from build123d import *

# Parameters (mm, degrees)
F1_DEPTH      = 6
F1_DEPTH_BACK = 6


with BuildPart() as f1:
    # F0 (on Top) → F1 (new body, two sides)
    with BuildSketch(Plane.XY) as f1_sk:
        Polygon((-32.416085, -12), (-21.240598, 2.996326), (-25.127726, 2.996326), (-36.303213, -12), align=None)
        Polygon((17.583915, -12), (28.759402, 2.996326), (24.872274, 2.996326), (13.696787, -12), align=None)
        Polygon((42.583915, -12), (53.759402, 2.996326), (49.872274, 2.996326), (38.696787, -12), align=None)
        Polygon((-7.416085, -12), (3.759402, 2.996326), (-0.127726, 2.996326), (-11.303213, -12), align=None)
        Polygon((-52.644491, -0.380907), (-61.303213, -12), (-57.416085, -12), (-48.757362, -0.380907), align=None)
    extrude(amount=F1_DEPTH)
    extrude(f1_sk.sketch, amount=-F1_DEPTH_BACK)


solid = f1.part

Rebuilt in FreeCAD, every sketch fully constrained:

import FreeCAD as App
import Part
import Sketcher

V = App.Vector
Q = App.Units.Quantity


def add_polygon(sketch, points):
    """Adds a closed chain of lines whose ends are joined by coincident constraints."""
    first, n = sketch.GeometryCount, len(points)
    for a, b in zip(points, points[1:] + points[:1]):
        sketch.addGeometry(Part.LineSegment(App.Vector(*a, 0), App.Vector(*b, 0)), False)
    for i in range(n):
        sketch.addConstraint(Sketcher.Constraint("Coincident", first + i, 2, first + (i + 1) % n, 1))

doc = App.newDocument("Part")
params = doc.addObject("Spreadsheet::Sheet", "Params")
for row, (alias, value) in enumerate([
    ("pad1_length", "6 mm"),
    ("pad1_length2", "6 mm"),
], start=1):
    params.set(f"A{row}", alias)
    params.set(f"B{row}", "=" + value)
    params.setAlias(f"B{row}", alias)

body = doc.addObject("PartDesign::Body", "Body")
body.AllowCompound = True

# Sketch on XY plane
sketch1 = body.newObject("Sketcher::SketchObject", "Sketch")
sketch1.AttachmentSupport = (doc.getObject("XY_Plane"), [""])
sketch1.MapMode = "FlatFace"
add_polygon(sketch1, [(-32.416085, -12), (-21.240598, 2.996326), (-25.127726, 2.996326), (-36.303213, -12)])  # lines 0-3
add_polygon(sketch1, [(17.583915, -12), (28.759402, 2.996326), (24.872274, 2.996326), (13.696787, -12)])  # lines 4-7
add_polygon(sketch1, [(42.583915, -12), (53.759402, 2.996326), (49.872274, 2.996326), (38.696787, -12)])  # lines 8-11
add_polygon(sketch1, [(-7.416085, -12), (3.759402, 2.996326), (-0.127726, 2.996326), (-11.303213, -12)])  # lines 12-15
add_polygon(sketch1, [(-52.644491, -0.380907), (-61.303213, -12), (-57.416085, -12), (-48.757362, -0.380907)])  # lines 16-19
sketch1.addConstraint([
    Sketcher.Constraint("Horizontal", 1),
    Sketcher.Constraint("Horizontal", 3),
    Sketcher.Constraint("Horizontal", 5),
    Sketcher.Constraint("Horizontal", 7),
    Sketcher.Constraint("Horizontal", 9),
    Sketcher.Constraint("Horizontal", 11),
    Sketcher.Constraint("Horizontal", 13),
    Sketcher.Constraint("Horizontal", 15),
    Sketcher.Constraint("Horizontal", 17),
    Sketcher.Constraint("Horizontal", 19),
    Sketcher.Constraint("Parallel", 0, 2),
    Sketcher.Constraint("Parallel", 2, 4),
    Sketcher.Constraint("Parallel", 4, 6),
    Sketcher.Constraint("Parallel", 6, 8),
    Sketcher.Constraint("Parallel", 8, 10),
    Sketcher.Constraint("Parallel", 10, 12),
    Sketcher.Constraint("Parallel", 12, 14),
    Sketcher.Constraint("Parallel", 14, 16),
    Sketcher.Constraint("Parallel", 16, 18),
    Sketcher.Constraint("Horizontal", 1, 2, 4, 2),
    Sketcher.Constraint("Horizontal", 3, 2, 6, 2),
    Sketcher.Constraint("Horizontal", 5, 2, 8, 2),
    Sketcher.Constraint("Horizontal", 7, 2, 10, 2),
    Sketcher.Constraint("Horizontal", 9, 2, 12, 2),
    Sketcher.Constraint("Horizontal", 11, 2, 14, 2),
    Sketcher.Constraint("Horizontal", 15, 2, 16, 2),
    Sketcher.Constraint("Equal", 3, 5),
    Sketcher.Constraint("Equal", 7, 9),
    Sketcher.Constraint("Equal", 11, 13),
    Sketcher.Constraint("Equal", 15, 17),
    Sketcher.Constraint("DistanceY", 2, 2, -1, 1, Q("12 mm")),
    Sketcher.Constraint("DistanceX", 0, 2, 4, 2, Q("50 mm")),
    Sketcher.Constraint("DistanceX", 4, 2, 8, 2, Q("25 mm")),
    Sketcher.Constraint("DistanceX", 0, 2, 12, 2, Q("25 mm")),
    Sketcher.Constraint("DistanceX", 16, 2, 2, 2, Q("25 mm")),
    Sketcher.Constraint("DistanceX", 1, 2, 1, 1, Q("3.887128 mm")),
    Sketcher.Constraint("Distance", 0, Q("18.702441 mm")),
    Sketcher.Constraint("DistanceX", 19, 2, -1, 1, Q("52.644491 mm")),
    Sketcher.Constraint("DistanceX", 3, 2, 1, 2, Q("7.288359 mm")),
    Sketcher.Constraint("DistanceX", 18, 2, 2, 2, Q("12.454149 mm")),
])
pad1 = body.newObject("PartDesign::Pad", "Pad")
pad1.Profile = sketch1
pad1.Type = "TwoLengths"
pad1.setExpression("Length", "Params.pad1_length")
pad1.setExpression("Length2", "Params.pad1_length2")

doc.recompute()
